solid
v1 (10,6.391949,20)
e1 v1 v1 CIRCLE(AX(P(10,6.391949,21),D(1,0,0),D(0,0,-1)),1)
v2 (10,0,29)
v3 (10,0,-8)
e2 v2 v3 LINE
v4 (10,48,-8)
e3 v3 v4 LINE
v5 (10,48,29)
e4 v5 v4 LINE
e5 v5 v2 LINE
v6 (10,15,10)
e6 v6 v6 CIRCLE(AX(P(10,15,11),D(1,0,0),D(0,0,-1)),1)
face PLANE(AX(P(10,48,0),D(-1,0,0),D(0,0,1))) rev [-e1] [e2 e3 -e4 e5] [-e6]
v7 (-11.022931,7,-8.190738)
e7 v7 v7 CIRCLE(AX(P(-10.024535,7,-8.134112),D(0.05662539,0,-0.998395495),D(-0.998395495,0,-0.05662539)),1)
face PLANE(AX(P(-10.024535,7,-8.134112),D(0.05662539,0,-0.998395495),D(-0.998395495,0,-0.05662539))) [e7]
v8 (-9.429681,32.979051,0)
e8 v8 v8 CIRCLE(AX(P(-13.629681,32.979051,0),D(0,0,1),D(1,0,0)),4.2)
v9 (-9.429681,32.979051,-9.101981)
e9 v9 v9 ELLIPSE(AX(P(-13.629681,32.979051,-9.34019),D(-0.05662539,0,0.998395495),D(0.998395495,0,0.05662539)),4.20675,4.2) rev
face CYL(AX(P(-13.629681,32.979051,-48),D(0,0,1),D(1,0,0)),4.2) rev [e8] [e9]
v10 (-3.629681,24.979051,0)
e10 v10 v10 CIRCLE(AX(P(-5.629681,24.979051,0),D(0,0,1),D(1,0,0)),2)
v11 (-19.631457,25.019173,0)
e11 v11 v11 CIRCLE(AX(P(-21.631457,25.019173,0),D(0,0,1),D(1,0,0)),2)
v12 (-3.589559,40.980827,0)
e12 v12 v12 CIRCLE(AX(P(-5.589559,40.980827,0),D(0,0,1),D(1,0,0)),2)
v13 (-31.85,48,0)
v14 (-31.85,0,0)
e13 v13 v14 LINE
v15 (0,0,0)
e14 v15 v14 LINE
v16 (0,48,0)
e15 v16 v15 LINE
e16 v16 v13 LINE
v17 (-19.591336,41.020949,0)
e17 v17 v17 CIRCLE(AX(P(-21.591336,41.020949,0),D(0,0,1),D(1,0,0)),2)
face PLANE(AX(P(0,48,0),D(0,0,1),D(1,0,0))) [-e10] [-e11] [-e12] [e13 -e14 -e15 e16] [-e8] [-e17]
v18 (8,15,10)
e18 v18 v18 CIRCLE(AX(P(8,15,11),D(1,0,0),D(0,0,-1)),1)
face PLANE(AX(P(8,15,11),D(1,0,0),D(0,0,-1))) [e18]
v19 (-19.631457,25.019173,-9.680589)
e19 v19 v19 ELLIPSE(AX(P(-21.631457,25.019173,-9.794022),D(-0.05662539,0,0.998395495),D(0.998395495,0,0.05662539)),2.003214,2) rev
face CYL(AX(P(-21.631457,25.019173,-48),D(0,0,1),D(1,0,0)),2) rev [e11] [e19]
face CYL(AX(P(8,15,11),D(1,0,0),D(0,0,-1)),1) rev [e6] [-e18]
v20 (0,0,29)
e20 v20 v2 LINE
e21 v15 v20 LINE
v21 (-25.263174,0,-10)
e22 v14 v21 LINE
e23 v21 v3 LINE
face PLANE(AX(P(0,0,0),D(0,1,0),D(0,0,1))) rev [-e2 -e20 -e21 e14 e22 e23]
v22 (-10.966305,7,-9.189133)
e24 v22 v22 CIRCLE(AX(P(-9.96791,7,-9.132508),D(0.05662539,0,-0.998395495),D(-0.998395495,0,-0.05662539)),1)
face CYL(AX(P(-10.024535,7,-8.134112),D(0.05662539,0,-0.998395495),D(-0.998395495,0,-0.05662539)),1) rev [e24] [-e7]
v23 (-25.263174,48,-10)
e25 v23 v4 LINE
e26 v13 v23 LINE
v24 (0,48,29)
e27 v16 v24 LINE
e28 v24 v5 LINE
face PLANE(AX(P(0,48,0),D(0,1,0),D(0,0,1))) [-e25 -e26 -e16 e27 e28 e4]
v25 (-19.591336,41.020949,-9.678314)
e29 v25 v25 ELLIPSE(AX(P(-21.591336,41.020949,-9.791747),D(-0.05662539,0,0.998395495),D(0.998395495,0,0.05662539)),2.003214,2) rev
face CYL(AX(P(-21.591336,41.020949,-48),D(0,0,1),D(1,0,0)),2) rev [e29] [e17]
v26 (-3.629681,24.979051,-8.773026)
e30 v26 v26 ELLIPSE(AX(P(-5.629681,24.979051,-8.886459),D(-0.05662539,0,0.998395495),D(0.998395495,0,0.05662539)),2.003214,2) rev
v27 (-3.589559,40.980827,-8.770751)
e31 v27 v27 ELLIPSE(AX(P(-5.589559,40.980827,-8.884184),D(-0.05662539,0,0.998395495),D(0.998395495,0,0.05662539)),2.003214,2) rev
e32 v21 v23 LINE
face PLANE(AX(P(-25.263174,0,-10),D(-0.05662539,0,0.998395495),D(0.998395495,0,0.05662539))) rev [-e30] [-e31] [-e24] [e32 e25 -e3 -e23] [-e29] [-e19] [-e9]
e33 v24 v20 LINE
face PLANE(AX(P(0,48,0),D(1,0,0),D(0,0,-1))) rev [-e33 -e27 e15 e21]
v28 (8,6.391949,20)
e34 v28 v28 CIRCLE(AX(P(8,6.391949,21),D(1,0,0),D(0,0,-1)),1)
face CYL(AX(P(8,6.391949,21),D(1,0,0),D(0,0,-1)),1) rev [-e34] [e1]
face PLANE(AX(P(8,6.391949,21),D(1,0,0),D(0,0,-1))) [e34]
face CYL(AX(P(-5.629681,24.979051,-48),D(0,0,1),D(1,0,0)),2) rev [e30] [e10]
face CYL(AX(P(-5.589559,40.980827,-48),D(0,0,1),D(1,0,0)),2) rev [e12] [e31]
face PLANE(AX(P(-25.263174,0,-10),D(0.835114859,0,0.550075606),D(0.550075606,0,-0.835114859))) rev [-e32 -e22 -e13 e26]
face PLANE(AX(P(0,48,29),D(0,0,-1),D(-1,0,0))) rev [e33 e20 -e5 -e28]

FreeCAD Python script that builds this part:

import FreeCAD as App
import Part
import Sketcher
from FreeCAD import Vector

doc = App.newDocument("Part")
body = doc.addObject("PartDesign::Body", "Body")

# Sketch on XZ plane
sketch1 = doc.addObject("Sketcher::SketchObject", "Sketch")
body.addObject(sketch1)
sketch1.AttachmentSupport = (doc.XZ_Plane, [""])
sketch1.MapMode = "FlatFace"
sketch1.addGeometry(Part.LineSegment(Vector(-31.85, -10, 0), Vector(-31.85, 0, 0)), False)
sketch1.addGeometry(Part.LineSegment(Vector(-31.85, 0, 0), Vector(0, 0, 0)), False)
sketch1.addGeometry(Part.LineSegment(Vector(0, 0, 0), Vector(0, 29, 0)), False)
sketch1.addGeometry(Part.LineSegment(Vector(0, 29, 0), Vector(10, 29, 0)), False)
sketch1.addGeometry(Part.LineSegment(Vector(10, 29, 0), Vector(10, -10, 0)), False)
sketch1.addGeometry(Part.LineSegment(Vector(10, -10, 0), Vector(-31.85, -10, 0)), False)
sketch1.addConstraint(Sketcher.Constraint("Coincident", 0, 2, 1, 1))
sketch1.addConstraint(Sketcher.Constraint("Coincident", 1, 2, 2, 1))
sketch1.addConstraint(Sketcher.Constraint("Coincident", 2, 2, 3, 1))
sketch1.addConstraint(Sketcher.Constraint("Coincident", 3, 2, 4, 1))
sketch1.addConstraint(Sketcher.Constraint("Coincident", 4, 2, 5, 1))
sketch1.addConstraint(Sketcher.Constraint("Coincident", 5, 2, 0, 1))
sketch1.addConstraint(Sketcher.Constraint("Vertical", 0))
sketch1.addConstraint(Sketcher.Constraint("Horizontal", 1))
sketch1.addConstraint(Sketcher.Constraint("Vertical", 2))
sketch1.addConstraint(Sketcher.Constraint("Horizontal", 3))
sketch1.addConstraint(Sketcher.Constraint("Vertical", 4))
sketch1.addConstraint(Sketcher.Constraint("Horizontal", 5))
sketch1.addConstraint(Sketcher.Constraint("Coincident", 1, 2, -1, 1))
sketch1.addConstraint(Sketcher.Constraint("Equal", 3, 0))
sketch1.addConstraint(Sketcher.Constraint("DistanceX", 3, 1, 3, 2, 10.0))
sketch1.addConstraint(Sketcher.Constraint("DistanceY", 2, 1, 2, 2, 29.0))
sketch1.addConstraint(Sketcher.Constraint("DistanceX", 1, 1, 1, 2, 31.85))
pad1 = doc.addObject("PartDesign::Pad", "Pad")
body.addObject(pad1)
pad1.Profile = sketch1
pad1.Length = 48
pad1.Reversed = True

# Sketch on XZ plane
sketch2 = doc.addObject("Sketcher::SketchObject", "Sketch001")
body.addObject(sketch2)
sketch2.AttachmentSupport = (doc.XZ_Plane, [""])
sketch2.MapMode = "FlatFace"
sketch2.AttachmentOffset = App.Placement(Vector(0, 0, -48), App.Rotation())
sketch2.addGeometry(Part.LineSegment(Vector(-25.263174, -10, 0), Vector(-31.85, -10, 0)), False)
sketch2.addGeometry(Part.LineSegment(Vector(-31.85, -10, 0), Vector(-31.85, 0, 0)), False)
sketch2.addGeometry(Part.LineSegment(Vector(-31.85, 0, 0), Vector(-25.263174, -10, 0)), False)
sketch2.addConstraint(Sketcher.Constraint("Coincident", 0, 2, 1, 1))
sketch2.addConstraint(Sketcher.Constraint("Coincident", 1, 2, 2, 1))
sketch2.addConstraint(Sketcher.Constraint("Coincident", 2, 2, 0, 1))
sketch2.addConstraint(Sketcher.Constraint("Horizontal", 0))
sketch2.addConstraint(Sketcher.Constraint("Vertical", 1))
sketch2.addConstraint(Sketcher.Constraint("PointOnObject", 1, 2, -1))
sketch2.addConstraint(Sketcher.Constraint("DistanceY", 1, 1, 1, 2, 10.0))
sketch2.addConstraint(Sketcher.Constraint("DistanceX", 0, 2, -1, 1, 31.85))
sketch2.addConstraint(Sketcher.Constraint("Distance", 2, 11.974401))
pocket1 = doc.addObject("PartDesign::Pocket", "Pocket")
body.addObject(pocket1)
pocket1.Profile = sketch2
pocket1.Length = 48
pocket1.Reversed = True

# Sketch on XY plane
sketch3 = doc.addObject("Sketcher::SketchObject", "Sketch002")
body.addObject(sketch3)
sketch3.AttachmentSupport = (doc.XY_Plane, [""])
sketch3.MapMode = "FlatFace"
sketch3.addGeometry(Part.Circle(Vector(-5.589559, 40.980827, 0), Vector(0, 0, 1), 2), False)
sketch3.addGeometry(Part.Circle(Vector(-5.629681, 24.979051, 0), Vector(0, 0, 1), 2), False)
sketch3.addGeometry(Part.Circle(Vector(-21.591336, 41.020949, 0), Vector(0, 0, 1), 2), False)
sketch3.addGeometry(Part.Circle(Vector(-21.631457, 25.019173, 0), Vector(0, 0, 1), 2), False)
sketch3.addGeometry(Part.Circle(Vector(-13.629681, 32.979051, 0), Vector(0, 0, 1), 4.2), False)
sketch3.addConstraint(Sketcher.Constraint("Equal", 0, 1))
sketch3.addConstraint(Sketcher.Constraint("Equal", 1, 2))
sketch3.addConstraint(Sketcher.Constraint("Equal", 2, 3))
sketch3.addConstraint(Sketcher.Constraint("Diameter", 0, 4.0))
sketch3.addConstraint(Sketcher.Constraint("Diameter", 4, 8.4))
sketch3.addConstraint(Sketcher.Constraint("DistanceX", 4, 3, 1, 3, 8.0))
sketch3.addConstraint(Sketcher.Constraint("DistanceY", 1, 3, 4, 3, 8.0))
sketch3.addConstraint(Sketcher.Constraint("DistanceX", 0, 3, -1, 1, 5.589559))
sketch3.addConstraint(Sketcher.Constraint("DistanceX", 1, 3, -1, 1, 5.629681))
sketch3.addConstraint(Sketcher.Constraint("DistanceY", -1, 1, 1, 3, 24.979051))
sketch3.addConstraint(Sketcher.Constraint("DistanceY", -1, 1, 2, 3, 41.020949))
sketch3.addConstraint(Sketcher.Constraint("DistanceY", 0, 3, 2, 3, 0.040122))
sketch3.addConstraint(Sketcher.Constraint("DistanceX", 3, 3, 2, 3, 0.040122))
sketch3.addConstraint(Sketcher.Constraint("DistanceY", 1, 3, 3, 3, 0.040122))
sketch3.addConstraint(Sketcher.Constraint("DistanceX", 2, 3, -1, 1, 21.591336))
pocket2 = doc.addObject("PartDesign::Pocket", "Pocket001")
body.addObject(pocket2)
pocket2.Profile = sketch3
pocket2.Length = 48

# Sketch on XZ plane
sketch4 = doc.addObject("Sketcher::SketchObject", "Sketch003")
body.addObject(sketch4)
sketch4.AttachmentSupport = (doc.XZ_Plane, [""])
sketch4.MapMode = "FlatFace"
sketch4.AttachmentOffset = App.Placement(Vector(0, 0, -48), App.Rotation())
sketch4.addGeometry(Part.LineSegment(Vector(-25.263174, -10, 0), Vector(10, -8, 0)), False)
sketch4.addGeometry(Part.LineSegment(Vector(10, -8, 0), Vector(10, -10, 0)), False)
sketch4.addGeometry(Part.LineSegment(Vector(10, -10, 0), Vector(-25.263174, -10, 0)), False)
sketch4.addConstraint(Sketcher.Constraint("Coincident", 0, 2, 1, 1))
sketch4.addConstraint(Sketcher.Constraint("Coincident", 1, 2, 2, 1))
sketch4.addConstraint(Sketcher.Constraint("Coincident", 2, 2, 0, 1))
sketch4.addConstraint(Sketcher.Constraint("Vertical", 1))
sketch4.addConstraint(Sketcher.Constraint("Horizontal", 2))
sketch4.addConstraint(Sketcher.Constraint("DistanceY", 1, 2, 1, 1, 2.0))
sketch4.addConstraint(Sketcher.Constraint("DistanceX", -1, 1, 0, 2, 10.0))
sketch4.addConstraint(Sketcher.Constraint("DistanceY", 0, 2, -1, 1, 8.0))
sketch4.addConstraint(Sketcher.Constraint("DistanceX", 2, 2, 2, 1, 35.263174))
pocket3 = doc.addObject("PartDesign::Pocket", "Pocket002")
body.addObject(pocket3)
pocket3.Profile = sketch4
pocket3.Length = 48
pocket3.Reversed = True

# Sketch on YZ plane
sketch5 = doc.addObject("Sketcher::SketchObject", "Sketch004")
body.addObject(sketch5)
sketch5.AttachmentSupport = (doc.YZ_Plane, [""])
sketch5.MapMode = "FlatFace"
sketch5.AttachmentOffset = App.Placement(Vector(0, 0, 10), App.Rotation())
sketch5.addGeometry(Part.Circle(Vector(6.391949, 21, 0), Vector(0, 0, 1), 1), False)
sketch5.addGeometry(Part.Circle(Vector(15, 11, 0), Vector(0, 0, 1), 1), False)
sketch5.addConstraint(Sketcher.Constraint("Equal", 0, 1))
sketch5.addConstraint(Sketcher.Constraint("Diameter", 0, 2.0))
sketch5.addConstraint(Sketcher.Constraint("DistanceY", -1, 1, 0, 3, 21.0))
sketch5.addConstraint(Sketcher.Constraint("DistanceX", -1, 1, 1, 3, 15.0))
sketch5.addConstraint(Sketcher.Constraint("DistanceY", -1, 1, 1, 3, 11.0))
sketch5.addConstraint(Sketcher.Constraint("DistanceX", -1, 1, 0, 3, 6.391949))
pocket4 = doc.addObject("PartDesign::Pocket", "Pocket003")
body.addObject(pocket4)
pocket4.Profile = sketch5
pocket4.Length = 2

# Sketch on an angled plane
sketch6 = doc.addObject("Sketcher::SketchObject", "Sketch005")
body.addObject(sketch6)
sketch6.Placement = App.Placement(Vector(0.484341, 0, -8.539694), App.Rotation(Vector(-0.998395495, 0, -0.05662539), Vector(0, 0.999999999, 0), Vector(0.05662539, 0, -0.998395495), "ZXY"))
sketch6.addGeometry(Part.Circle(Vector(10.469048, 7, 0), Vector(0, 0, 1), 1), False)
sketch6.addConstraint(Sketcher.Constraint("Diameter", 0, 2.0))
sketch6.addConstraint(Sketcher.Constraint("DistanceY", -1, 1, 0, 3, 7.0))
sketch6.addConstraint(Sketcher.Constraint("DistanceX", -1, 1, 0, 3, 10.469048))
pocket5 = doc.addObject("PartDesign::Pocket", "Pocket004")
body.addObject(pocket5)
pocket5.Profile = sketch6
pocket5.Length = 1

doc.recompute()
